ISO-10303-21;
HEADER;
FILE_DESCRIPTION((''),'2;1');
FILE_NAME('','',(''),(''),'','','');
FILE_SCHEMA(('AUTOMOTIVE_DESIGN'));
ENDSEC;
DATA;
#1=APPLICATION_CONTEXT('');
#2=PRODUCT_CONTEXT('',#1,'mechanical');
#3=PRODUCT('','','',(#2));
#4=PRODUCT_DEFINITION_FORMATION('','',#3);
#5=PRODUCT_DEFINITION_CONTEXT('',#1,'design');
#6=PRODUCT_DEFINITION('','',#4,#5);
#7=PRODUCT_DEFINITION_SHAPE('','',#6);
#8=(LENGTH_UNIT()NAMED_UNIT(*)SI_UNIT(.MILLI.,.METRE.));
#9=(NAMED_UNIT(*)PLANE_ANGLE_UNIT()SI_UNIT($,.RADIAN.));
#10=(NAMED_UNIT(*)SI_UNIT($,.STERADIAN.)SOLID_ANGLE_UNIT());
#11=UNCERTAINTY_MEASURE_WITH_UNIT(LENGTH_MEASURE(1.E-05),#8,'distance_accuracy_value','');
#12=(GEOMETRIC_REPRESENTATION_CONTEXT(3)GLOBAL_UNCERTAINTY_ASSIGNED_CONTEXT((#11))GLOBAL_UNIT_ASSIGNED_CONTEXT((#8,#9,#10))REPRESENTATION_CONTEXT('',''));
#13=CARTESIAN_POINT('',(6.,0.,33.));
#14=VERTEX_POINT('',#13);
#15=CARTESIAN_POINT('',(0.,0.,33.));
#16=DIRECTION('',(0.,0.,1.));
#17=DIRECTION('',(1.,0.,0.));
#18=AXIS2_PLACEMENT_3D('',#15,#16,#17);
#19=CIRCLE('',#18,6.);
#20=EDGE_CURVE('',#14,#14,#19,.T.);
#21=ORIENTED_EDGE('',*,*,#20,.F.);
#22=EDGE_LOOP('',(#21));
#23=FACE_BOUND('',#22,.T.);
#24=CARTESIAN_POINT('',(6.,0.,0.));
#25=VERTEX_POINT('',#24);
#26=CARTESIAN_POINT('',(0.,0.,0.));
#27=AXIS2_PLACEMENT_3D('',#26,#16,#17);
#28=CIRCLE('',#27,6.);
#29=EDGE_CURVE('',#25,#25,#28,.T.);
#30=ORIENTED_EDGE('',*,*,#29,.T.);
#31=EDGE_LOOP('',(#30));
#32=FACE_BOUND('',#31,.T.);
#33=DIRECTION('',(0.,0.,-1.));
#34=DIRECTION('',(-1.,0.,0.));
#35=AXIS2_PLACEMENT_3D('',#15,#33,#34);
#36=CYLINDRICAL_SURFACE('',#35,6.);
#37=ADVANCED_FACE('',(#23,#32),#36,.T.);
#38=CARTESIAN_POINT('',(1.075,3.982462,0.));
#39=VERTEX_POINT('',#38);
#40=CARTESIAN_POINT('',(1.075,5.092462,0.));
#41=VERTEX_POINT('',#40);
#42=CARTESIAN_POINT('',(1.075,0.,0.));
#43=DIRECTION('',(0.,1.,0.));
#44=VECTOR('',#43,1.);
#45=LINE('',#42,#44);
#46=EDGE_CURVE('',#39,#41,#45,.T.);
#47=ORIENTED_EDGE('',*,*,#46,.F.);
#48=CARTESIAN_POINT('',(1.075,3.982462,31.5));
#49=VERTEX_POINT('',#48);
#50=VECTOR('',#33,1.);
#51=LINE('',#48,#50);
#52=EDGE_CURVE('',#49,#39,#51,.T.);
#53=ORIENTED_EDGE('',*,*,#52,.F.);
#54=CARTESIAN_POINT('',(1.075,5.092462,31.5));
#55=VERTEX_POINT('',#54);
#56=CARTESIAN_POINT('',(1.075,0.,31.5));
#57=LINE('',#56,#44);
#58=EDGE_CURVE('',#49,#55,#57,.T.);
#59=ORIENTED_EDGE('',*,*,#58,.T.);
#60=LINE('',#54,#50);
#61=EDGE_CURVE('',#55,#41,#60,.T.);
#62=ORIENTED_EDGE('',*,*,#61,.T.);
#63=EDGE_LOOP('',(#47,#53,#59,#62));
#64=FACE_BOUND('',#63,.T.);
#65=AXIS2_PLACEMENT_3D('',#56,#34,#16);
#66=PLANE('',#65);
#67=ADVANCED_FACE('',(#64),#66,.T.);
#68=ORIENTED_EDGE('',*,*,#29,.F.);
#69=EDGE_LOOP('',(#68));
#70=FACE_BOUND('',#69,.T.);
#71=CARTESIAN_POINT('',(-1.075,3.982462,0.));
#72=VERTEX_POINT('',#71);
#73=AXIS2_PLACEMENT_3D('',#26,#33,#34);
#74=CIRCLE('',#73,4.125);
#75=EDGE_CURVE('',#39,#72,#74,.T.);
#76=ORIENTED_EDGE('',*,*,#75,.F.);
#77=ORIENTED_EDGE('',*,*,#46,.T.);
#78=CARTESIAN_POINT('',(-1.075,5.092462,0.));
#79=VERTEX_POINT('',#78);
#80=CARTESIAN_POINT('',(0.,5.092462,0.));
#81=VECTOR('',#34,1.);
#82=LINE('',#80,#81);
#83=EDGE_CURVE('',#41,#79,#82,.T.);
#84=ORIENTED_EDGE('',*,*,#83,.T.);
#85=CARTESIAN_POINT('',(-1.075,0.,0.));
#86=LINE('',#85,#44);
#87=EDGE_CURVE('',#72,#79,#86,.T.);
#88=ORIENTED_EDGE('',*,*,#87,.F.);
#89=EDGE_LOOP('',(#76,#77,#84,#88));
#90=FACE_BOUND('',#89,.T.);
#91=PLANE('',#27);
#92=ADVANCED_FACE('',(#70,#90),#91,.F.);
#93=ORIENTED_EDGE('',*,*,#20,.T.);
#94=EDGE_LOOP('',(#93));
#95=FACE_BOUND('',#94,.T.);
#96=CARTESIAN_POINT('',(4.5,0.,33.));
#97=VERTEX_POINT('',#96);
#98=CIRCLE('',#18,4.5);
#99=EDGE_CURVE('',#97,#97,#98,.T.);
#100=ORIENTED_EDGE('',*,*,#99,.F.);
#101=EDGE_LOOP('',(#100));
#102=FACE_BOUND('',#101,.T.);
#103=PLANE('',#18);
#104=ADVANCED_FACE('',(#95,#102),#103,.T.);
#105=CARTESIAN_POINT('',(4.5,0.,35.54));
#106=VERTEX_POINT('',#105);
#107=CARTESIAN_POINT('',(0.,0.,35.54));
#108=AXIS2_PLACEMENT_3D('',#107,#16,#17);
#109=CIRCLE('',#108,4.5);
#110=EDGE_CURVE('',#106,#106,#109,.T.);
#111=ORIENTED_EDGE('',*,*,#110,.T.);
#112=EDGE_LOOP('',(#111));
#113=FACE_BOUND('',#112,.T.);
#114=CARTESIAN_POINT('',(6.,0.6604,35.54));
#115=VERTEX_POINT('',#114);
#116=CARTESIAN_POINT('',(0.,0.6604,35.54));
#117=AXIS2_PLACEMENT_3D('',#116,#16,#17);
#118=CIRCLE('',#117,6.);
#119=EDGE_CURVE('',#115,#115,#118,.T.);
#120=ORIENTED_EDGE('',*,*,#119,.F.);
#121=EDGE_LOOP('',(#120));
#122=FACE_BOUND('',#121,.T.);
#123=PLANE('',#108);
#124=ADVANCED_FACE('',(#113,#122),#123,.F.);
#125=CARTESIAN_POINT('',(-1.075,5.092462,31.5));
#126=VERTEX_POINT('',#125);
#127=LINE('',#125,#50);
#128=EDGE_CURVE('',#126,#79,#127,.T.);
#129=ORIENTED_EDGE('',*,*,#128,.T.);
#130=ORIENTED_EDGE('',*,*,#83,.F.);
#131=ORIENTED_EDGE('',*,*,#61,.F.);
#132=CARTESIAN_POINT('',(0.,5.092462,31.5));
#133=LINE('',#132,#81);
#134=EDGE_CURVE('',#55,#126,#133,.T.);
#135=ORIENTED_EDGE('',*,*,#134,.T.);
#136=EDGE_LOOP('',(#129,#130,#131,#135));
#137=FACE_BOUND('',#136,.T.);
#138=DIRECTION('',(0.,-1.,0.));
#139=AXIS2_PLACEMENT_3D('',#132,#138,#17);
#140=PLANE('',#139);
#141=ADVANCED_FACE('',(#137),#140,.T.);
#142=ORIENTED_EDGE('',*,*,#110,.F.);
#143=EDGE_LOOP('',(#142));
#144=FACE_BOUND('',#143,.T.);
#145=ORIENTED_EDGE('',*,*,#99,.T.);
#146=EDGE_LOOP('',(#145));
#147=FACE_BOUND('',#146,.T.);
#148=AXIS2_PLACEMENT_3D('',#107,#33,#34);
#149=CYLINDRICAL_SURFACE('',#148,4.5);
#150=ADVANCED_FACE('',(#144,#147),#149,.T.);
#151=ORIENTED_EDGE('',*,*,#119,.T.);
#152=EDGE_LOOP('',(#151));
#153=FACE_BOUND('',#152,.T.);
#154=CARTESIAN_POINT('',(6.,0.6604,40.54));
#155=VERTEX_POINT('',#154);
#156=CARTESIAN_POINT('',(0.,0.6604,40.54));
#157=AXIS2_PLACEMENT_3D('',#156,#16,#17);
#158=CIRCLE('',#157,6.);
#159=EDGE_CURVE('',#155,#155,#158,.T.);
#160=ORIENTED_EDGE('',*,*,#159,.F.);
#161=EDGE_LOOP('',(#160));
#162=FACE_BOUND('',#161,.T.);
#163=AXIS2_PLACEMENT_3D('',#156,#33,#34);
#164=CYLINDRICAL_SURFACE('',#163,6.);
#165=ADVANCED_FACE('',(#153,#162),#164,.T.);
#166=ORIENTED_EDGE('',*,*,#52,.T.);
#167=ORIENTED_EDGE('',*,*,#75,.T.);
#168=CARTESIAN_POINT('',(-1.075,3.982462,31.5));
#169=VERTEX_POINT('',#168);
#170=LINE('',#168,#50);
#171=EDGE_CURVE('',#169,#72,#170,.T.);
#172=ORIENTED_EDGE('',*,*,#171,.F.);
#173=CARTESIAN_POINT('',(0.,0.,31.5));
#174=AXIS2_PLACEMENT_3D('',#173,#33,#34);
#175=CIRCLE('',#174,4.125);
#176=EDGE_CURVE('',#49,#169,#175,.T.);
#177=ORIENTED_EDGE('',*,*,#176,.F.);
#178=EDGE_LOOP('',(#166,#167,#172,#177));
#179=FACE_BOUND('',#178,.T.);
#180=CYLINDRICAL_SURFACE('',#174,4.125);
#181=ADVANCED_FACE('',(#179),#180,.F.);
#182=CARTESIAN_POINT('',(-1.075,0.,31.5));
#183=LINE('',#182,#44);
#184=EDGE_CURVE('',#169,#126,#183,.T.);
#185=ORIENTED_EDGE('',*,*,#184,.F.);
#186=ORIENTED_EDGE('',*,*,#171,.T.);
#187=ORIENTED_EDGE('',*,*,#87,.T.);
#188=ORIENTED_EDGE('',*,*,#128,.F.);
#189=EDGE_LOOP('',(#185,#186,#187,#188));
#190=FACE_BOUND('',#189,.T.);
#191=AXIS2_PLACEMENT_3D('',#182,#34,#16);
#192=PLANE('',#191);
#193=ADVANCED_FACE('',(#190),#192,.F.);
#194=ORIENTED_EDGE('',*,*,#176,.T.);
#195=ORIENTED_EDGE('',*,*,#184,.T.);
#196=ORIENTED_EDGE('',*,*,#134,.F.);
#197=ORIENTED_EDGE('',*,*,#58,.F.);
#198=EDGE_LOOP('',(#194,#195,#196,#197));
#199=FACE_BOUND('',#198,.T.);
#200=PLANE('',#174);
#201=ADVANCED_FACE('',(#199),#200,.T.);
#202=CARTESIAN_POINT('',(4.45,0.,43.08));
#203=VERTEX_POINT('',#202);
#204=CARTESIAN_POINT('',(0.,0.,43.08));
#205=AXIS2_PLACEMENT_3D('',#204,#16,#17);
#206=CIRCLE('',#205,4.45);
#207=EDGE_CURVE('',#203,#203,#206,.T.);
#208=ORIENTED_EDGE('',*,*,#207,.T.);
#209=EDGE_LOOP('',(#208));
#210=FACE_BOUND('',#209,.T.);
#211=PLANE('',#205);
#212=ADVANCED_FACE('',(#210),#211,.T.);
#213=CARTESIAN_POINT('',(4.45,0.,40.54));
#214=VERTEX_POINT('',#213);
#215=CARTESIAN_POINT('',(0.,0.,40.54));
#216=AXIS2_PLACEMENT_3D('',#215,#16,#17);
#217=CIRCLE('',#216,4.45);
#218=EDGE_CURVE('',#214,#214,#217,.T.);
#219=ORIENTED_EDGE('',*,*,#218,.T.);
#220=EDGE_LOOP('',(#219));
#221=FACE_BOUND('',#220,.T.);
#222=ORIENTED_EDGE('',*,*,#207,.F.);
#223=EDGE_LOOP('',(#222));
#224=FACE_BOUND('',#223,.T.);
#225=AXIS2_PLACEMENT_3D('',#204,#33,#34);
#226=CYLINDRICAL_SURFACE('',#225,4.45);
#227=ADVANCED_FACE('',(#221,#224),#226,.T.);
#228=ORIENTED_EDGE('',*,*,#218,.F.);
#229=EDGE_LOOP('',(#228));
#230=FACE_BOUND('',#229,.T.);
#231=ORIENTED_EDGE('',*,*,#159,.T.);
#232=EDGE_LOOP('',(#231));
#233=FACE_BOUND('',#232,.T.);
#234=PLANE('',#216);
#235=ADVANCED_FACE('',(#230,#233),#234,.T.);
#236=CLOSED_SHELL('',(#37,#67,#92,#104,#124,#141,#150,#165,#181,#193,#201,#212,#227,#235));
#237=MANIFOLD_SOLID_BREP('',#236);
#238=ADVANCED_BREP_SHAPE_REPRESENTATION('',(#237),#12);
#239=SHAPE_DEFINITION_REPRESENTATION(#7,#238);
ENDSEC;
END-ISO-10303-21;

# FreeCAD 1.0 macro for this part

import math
import FreeCAD as App
import Part
import Sketcher
from FreeCAD import Vector

doc = App.newDocument("Part")
body = doc.addObject("PartDesign::Body", "Body")

sketch1 = body.newObject("Sketcher::SketchObject", "Sketch")
sketch1.AttachmentSupport = (doc.getObject("XY_Plane"), [""])
sketch1.MapMode = "FlatFace"
sketch1.addGeometry(Part.Circle(Vector(0, 0, 0), Vector(0, 0, 1), 6), False)
sketch1.addConstraint(Sketcher.Constraint("Coincident", 0, 3, -1, 1))
sketch1.addConstraint(Sketcher.Constraint("Diameter", 0, 12.0))
pad1 = body.newObject("PartDesign::Pad", "Pad")
pad1.Profile = sketch1
pad1.Length = 33

sketch2 = body.newObject("Sketcher::SketchObject", "Sketch001")
sketch2.AttachmentSupport = (doc.getObject("XY_Plane"), [""])
sketch2.MapMode = "FlatFace"
sketch2.AttachmentOffset = App.Placement(Vector(0, 0, 33), App.Rotation())
sketch2.addGeometry(Part.Circle(Vector(0, 0, 0), Vector(0, 0, 1), 4.5), False)
sketch2.addConstraint(Sketcher.Constraint("Coincident", 0, 3, -1, 1))
sketch2.addConstraint(Sketcher.Constraint("Diameter", 0, 9.0))
pad2 = body.newObject("PartDesign::Pad", "Pad001")
pad2.Profile = sketch2
pad2.Length = 2.54

sketch3 = body.newObject("Sketcher::SketchObject", "Sketch002")
sketch3.AttachmentSupport = (doc.getObject("XY_Plane"), [""])
sketch3.MapMode = "FlatFace"
sketch3.AttachmentOffset = App.Placement(Vector(0, 0, 35.54), App.Rotation())
sketch3.addGeometry(Part.Circle(Vector(0, 1, 0), Vector(0, 0, 1), 6), False)
sketch3.addConstraint(Sketcher.Constraint("PointOnObject", 0, 3, -2))
sketch3.addConstraint(Sketcher.Constraint("Diameter", 0, 12.0))
sketch3.addConstraint(Sketcher.Constraint("DistanceY", -1, 1, 0, 3, 0.6604))
pad3 = body.newObject("PartDesign::Pad", "Pad002")
pad3.Profile = sketch3
pad3.Length = 5

sketch4 = body.newObject("Sketcher::SketchObject", "Sketch003")
sketch4.AttachmentSupport = (doc.getObject("XY_Plane"), [""])
sketch4.MapMode = "FlatFace"
sketch4.AttachmentOffset = App.Placement(Vector(0, 0, 40.54), App.Rotation())
sketch4.addGeometry(Part.Circle(Vector(0, 0, 0), Vector(0, 0, 1), 4.5), False)
sketch4.addConstraint(Sketcher.Constraint("Coincident", 0, 3, -1, 1))
sketch4.addConstraint(Sketcher.Constraint("Diameter", 0, 8.9))
pad4 = body.newObject("PartDesign::Pad", "Pad003")
pad4.Profile = sketch4
pad4.Length = 2.54

sketch5 = body.newObject("Sketcher::SketchObject", "Sketch004")
sketch5.AttachmentSupport = (doc.getObject("XY_Plane"), [""])
sketch5.MapMode = "FlatFace"
sketch5.addGeometry(Part.LineSegment(Vector(1.1, 5.1, 0), Vector(1.1, 4, 0)), False)
sketch5.addGeometry(Part.ArcOfCircle(Part.Circle(Vector(0, 0, 0), Vector(0, 0, 1), 4.1), math.radians(180), math.radians(435)), False)
sketch5.addGeometry(Part.ArcOfCircle(Part.Circle(Vector(0, 0, 0), Vector(0, 0, 1), 4.1), math.radians(105), math.radians(180)), False)
sketch5.addGeometry(Part.LineSegment(Vector(-1.1, 4, 0), Vector(-1.1, 5.1, 0)), False)
sketch5.addGeometry(Part.LineSegment(Vector(-1.1, 5.1, 0), Vector(1.1, 5.1, 0)), False)
sketch5.addConstraint(Sketcher.Constraint("Coincident", 0, 2, 1, 2))
sketch5.addConstraint(Sketcher.Constraint("Tangent", 1, 1, 2, 2))
sketch5.addConstraint(Sketcher.Constraint("Coincident", 2, 1, 3, 1))
sketch5.addConstraint(Sketcher.Constraint("Coincident", 3, 2, 4, 1))
sketch5.addConstraint(Sketcher.Constraint("Coincident", 4, 2, 0, 1))
sketch5.addConstraint(Sketcher.Constraint("Vertical", 0))
sketch5.addConstraint(Sketcher.Constraint("Vertical", 3))
sketch5.addConstraint(Sketcher.Constraint("Horizontal", 4))
sketch5.addConstraint(Sketcher.Constraint("Coincident", 1, 3, -1, 1))
sketch5.addConstraint(Sketcher.Constraint("Equal", 1, 2))
sketch5.addConstraint(Sketcher.Constraint("PointOnObject", 1, 1, -1))
sketch5.addConstraint(Sketcher.Constraint("Horizontal", 0, 2, 2, 1))
sketch5.addConstraint(Sketcher.Constraint("Radius", 1, 4.125))
sketch5.addConstraint(Sketcher.Constraint("DistanceX", 4, 1, 4, 2, 2.15))
sketch5.addConstraint(Sketcher.Constraint("DistanceY", 0, 2, 0, 1, 1.11))
pocket1 = body.newObject("PartDesign::Pocket", "Pocket")
pocket1.Profile = sketch5
pocket1.Length = 31.5
pocket1.Reversed = True

doc.recompute()
